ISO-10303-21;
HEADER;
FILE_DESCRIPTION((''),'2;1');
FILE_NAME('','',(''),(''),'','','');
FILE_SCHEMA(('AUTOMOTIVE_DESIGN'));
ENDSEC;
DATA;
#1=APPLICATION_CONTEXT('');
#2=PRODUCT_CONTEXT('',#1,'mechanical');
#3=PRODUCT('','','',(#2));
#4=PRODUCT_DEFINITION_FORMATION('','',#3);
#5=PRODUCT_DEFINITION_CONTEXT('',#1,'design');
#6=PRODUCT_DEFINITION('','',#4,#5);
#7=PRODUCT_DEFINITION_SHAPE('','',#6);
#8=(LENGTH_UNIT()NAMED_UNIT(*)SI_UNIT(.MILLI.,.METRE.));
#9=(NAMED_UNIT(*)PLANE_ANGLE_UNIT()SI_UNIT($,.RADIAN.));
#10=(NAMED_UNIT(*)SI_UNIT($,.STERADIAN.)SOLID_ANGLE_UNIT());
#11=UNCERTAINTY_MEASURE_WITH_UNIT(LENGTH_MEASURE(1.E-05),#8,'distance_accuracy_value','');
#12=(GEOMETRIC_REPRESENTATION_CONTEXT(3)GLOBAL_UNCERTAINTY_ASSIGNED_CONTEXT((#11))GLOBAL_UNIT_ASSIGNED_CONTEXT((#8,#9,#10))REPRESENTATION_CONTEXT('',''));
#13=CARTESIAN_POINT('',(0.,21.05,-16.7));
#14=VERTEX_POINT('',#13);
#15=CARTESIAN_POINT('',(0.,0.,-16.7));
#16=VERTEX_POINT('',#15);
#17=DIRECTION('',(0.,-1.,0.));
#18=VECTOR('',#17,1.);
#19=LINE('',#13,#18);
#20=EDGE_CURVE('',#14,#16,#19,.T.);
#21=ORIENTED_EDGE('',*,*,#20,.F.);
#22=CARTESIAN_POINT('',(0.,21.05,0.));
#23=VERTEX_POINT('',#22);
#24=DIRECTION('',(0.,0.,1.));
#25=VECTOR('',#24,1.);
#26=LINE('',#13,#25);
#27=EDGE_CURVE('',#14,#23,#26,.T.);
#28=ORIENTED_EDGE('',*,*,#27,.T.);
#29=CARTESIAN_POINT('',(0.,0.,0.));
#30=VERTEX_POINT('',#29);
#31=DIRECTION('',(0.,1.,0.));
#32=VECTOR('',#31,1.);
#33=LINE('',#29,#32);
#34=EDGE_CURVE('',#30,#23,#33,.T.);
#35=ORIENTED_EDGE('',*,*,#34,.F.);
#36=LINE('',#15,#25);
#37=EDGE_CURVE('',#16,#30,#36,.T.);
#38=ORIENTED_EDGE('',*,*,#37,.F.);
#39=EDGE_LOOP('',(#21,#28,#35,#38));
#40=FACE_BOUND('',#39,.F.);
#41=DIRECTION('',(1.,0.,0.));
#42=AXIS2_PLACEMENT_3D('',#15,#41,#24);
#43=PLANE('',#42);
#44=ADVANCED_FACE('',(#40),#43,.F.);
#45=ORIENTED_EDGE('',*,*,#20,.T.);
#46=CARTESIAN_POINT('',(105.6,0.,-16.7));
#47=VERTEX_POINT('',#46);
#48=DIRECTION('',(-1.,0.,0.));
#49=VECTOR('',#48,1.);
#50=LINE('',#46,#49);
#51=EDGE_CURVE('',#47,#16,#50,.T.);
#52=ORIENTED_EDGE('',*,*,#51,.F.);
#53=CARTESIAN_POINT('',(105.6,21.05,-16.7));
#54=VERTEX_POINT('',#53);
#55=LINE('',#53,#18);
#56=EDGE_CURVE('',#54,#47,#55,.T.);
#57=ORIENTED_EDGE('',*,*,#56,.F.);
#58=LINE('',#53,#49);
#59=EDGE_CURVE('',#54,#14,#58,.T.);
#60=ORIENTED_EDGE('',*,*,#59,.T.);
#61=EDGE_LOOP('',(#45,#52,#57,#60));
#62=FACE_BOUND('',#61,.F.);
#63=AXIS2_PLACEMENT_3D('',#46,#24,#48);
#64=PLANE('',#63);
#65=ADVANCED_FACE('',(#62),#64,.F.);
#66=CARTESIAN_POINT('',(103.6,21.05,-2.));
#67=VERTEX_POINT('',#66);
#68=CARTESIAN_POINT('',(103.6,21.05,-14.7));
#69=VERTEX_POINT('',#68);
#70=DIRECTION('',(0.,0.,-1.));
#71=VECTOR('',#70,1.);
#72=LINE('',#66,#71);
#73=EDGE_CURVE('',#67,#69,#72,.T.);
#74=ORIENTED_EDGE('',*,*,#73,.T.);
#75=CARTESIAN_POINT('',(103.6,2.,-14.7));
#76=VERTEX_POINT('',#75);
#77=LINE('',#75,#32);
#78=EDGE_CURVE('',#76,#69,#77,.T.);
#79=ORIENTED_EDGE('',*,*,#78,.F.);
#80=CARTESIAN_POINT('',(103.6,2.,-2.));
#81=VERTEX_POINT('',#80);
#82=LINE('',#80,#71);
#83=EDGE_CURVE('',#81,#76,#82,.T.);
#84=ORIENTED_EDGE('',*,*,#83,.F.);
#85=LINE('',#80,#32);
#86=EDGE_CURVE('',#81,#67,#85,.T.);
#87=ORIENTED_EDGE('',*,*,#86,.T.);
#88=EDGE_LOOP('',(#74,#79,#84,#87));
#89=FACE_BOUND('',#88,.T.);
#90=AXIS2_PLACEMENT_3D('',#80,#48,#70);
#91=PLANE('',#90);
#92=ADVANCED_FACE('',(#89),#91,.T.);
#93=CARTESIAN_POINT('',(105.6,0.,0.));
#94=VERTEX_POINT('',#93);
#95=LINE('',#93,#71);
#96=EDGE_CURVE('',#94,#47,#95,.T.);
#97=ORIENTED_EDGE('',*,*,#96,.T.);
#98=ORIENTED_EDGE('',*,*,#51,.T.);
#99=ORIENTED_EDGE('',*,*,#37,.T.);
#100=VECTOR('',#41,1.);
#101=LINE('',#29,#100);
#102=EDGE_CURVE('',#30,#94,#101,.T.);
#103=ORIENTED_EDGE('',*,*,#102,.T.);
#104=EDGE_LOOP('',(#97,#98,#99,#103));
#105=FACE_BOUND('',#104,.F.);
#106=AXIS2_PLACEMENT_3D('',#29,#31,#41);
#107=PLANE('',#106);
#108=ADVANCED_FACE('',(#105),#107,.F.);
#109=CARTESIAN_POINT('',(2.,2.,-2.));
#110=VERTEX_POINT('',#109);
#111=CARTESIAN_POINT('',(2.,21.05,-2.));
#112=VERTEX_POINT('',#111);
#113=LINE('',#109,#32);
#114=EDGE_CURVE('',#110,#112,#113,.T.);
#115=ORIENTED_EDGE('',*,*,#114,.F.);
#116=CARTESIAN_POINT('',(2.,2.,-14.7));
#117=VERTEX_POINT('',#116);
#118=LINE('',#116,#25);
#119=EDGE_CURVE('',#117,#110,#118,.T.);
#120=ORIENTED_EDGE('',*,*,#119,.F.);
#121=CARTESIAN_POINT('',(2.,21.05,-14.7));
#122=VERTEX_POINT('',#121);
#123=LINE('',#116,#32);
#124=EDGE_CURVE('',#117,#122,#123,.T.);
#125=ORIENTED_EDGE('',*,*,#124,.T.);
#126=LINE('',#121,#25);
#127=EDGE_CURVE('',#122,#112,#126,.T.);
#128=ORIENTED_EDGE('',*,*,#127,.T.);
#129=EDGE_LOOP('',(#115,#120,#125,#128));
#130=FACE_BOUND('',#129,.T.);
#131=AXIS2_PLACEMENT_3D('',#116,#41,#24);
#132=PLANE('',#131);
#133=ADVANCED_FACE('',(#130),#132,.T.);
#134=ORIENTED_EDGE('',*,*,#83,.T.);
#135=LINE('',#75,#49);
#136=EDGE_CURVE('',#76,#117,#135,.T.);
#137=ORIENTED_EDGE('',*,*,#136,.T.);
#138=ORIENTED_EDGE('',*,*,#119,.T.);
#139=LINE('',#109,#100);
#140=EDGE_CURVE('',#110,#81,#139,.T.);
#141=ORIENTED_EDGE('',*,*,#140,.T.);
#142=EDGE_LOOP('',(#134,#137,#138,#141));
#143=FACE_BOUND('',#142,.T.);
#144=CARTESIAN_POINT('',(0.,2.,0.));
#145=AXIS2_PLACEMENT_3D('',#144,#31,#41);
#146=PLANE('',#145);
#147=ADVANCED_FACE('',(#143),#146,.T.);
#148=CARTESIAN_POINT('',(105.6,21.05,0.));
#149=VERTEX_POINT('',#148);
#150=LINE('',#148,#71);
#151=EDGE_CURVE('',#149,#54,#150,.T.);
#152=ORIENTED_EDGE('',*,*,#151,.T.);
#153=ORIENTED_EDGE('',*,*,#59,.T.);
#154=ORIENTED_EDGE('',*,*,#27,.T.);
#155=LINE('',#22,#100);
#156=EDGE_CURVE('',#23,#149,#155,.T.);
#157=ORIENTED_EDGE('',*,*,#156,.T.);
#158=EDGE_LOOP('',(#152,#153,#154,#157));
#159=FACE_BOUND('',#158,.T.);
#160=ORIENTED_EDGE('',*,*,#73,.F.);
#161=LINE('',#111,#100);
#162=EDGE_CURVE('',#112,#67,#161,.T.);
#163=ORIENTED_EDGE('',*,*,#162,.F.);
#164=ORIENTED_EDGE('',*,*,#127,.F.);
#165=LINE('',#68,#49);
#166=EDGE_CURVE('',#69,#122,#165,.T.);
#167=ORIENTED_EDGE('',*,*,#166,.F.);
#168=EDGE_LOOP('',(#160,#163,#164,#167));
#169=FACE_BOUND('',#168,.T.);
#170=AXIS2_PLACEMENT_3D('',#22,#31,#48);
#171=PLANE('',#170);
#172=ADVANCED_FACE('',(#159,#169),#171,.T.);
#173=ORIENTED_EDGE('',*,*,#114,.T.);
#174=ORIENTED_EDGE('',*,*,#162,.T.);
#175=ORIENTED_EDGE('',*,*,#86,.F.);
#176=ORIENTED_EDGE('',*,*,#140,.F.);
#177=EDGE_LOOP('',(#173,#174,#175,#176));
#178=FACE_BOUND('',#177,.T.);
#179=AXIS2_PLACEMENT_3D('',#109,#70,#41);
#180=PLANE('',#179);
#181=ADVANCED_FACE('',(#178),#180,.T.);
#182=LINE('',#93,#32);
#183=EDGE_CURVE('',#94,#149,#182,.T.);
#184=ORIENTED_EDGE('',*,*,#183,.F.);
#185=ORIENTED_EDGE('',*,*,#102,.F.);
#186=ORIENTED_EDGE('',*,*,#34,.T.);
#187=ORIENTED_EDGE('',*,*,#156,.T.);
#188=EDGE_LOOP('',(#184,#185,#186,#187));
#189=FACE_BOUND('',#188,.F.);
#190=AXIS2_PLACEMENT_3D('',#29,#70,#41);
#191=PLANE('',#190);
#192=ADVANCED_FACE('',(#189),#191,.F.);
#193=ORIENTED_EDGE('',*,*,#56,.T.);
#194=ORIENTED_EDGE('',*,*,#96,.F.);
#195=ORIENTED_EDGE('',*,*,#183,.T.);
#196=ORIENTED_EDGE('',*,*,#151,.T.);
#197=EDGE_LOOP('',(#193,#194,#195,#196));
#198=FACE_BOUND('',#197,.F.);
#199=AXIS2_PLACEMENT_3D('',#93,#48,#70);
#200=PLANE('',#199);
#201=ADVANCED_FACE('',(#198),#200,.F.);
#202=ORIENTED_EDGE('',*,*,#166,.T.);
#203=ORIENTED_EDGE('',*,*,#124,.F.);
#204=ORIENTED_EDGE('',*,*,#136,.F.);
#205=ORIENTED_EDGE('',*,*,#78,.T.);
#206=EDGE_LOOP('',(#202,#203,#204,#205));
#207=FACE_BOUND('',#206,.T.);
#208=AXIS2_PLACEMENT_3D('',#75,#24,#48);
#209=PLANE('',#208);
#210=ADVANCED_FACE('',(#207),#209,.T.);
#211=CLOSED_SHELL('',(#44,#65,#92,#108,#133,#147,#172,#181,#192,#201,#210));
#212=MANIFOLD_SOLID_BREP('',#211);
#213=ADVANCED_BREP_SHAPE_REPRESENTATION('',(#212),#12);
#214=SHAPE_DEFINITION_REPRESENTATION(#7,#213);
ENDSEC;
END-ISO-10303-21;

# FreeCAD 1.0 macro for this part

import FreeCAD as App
import Part
import Sketcher

V = App.Vector
Q = App.Units.Quantity

doc = App.newDocument("Part")
body = doc.addObject("PartDesign::Body", "Body")

# Sketch on XZ plane
sketch1 = body.newObject("Sketcher::SketchObject", "Sketch")
sketch1.AttachmentSupport = (doc.getObject("XZ_Plane"), [""])
sketch1.MapMode = "FlatFace"
sketch1.addGeometry(Part.LineSegment(V(0, -17, 0), V(0, 0, 0)), False)
sketch1.addGeometry(Part.LineSegment(V(0, 0, 0), V(106, 0, 0)), False)
sketch1.addGeometry(Part.LineSegment(V(106, 0, 0), V(106, -17, 0)), False)
sketch1.addGeometry(Part.LineSegment(V(106, -17, 0), V(0, -17, 0)), False)
sketch1.addConstraint(Sketcher.Constraint("Coincident", 0, 2, 1, 1))
sketch1.addConstraint(Sketcher.Constraint("Coincident", 1, 2, 2, 1))
sketch1.addConstraint(Sketcher.Constraint("Coincident", 2, 2, 3, 1))
sketch1.addConstraint(Sketcher.Constraint("Coincident", 3, 2, 0, 1))
sketch1.addConstraint(Sketcher.Constraint("Vertical", 0))
sketch1.addConstraint(Sketcher.Constraint("Horizontal", 1))
sketch1.addConstraint(Sketcher.Constraint("Vertical", 2))
sketch1.addConstraint(Sketcher.Constraint("Horizontal", 3))
sketch1.addConstraint(Sketcher.Constraint("Coincident", 0, 2, -1, 1))
sketch1.addConstraint(Sketcher.Constraint("DistanceX", 1, 1, 1, 2, Q("105.6 mm")))
sketch1.addConstraint(Sketcher.Constraint("DistanceY", 0, 1, 0, 2, Q("16.7 mm")))
pad1 = body.newObject("PartDesign::Pad", "Pad")
pad1.Profile = sketch1
pad1.Length = 2
pad1.Reversed = True

# Sketch on XZ plane
sketch2 = body.newObject("Sketcher::SketchObject", "Sketch001")
sketch2.AttachmentSupport = (doc.getObject("XZ_Plane"), [""])
sketch2.MapMode = "FlatFace"
sketch2.AttachmentOffset = App.Placement(V(0, 0, -2), App.Rotation())
sketch2.addGeometry(Part.LineSegment(V(106, -17, 0), V(0, -17, 0)), False)
sketch2.addGeometry(Part.LineSegment(V(0, -17, 0), V(0, 0, 0)), False)
sketch2.addGeometry(Part.LineSegment(V(0, 0, 0), V(106, 0, 0)), False)
sketch2.addGeometry(Part.LineSegment(V(106, 0, 0), V(106, -17, 0)), False)
sketch2.addGeometry(Part.LineSegment(V(104, -2, 0), V(2, -2, 0)), False)
sketch2.addGeometry(Part.LineSegment(V(2, -2, 0), V(2, -15, 0)), False)
sketch2.addGeometry(Part.LineSegment(V(2, -15, 0), V(104, -15, 0)), False)
sketch2.addGeometry(Part.LineSegment(V(104, -15, 0), V(104, -2, 0)), False)
sketch2.addConstraint(Sketcher.Constraint("Coincident", 0, 2, 1, 1))
sketch2.addConstraint(Sketcher.Constraint("Coincident", 1, 2, 2, 1))
sketch2.addConstraint(Sketcher.Constraint("Coincident", 2, 2, 3, 1))
sketch2.addConstraint(Sketcher.Constraint("Coincident", 3, 2, 0, 1))
sketch2.addConstraint(Sketcher.Constraint("Coincident", 4, 2, 5, 1))
sketch2.addConstraint(Sketcher.Constraint("Coincident", 5, 2, 6, 1))
sketch2.addConstraint(Sketcher.Constraint("Coincident", 6, 2, 7, 1))
sketch2.addConstraint(Sketcher.Constraint("Coincident", 7, 2, 4, 1))
sketch2.addConstraint(Sketcher.Constraint("Horizontal", 0))
sketch2.addConstraint(Sketcher.Constraint("Vertical", 1))
sketch2.addConstraint(Sketcher.Constraint("Horizontal", 2))
sketch2.addConstraint(Sketcher.Constraint("Vertical", 3))
sketch2.addConstraint(Sketcher.Constraint("Horizontal", 4))
sketch2.addConstraint(Sketcher.Constraint("Vertical", 5))
sketch2.addConstraint(Sketcher.Constraint("Horizontal", 6))
sketch2.addConstraint(Sketcher.Constraint("Vertical", 7))
sketch2.addConstraint(Sketcher.Constraint("Coincident", 1, 2, -1, 1))
sketch2.addConstraint(Sketcher.Constraint("DistanceX", -1, 1, 4, 2, Q("2 mm")))
sketch2.addConstraint(Sketcher.Constraint("DistanceY", 4, 2, -1, 1, Q("2 mm")))
sketch2.addConstraint(Sketcher.Constraint("DistanceY", 0, 2, 5, 2, Q("2 mm")))
sketch2.addConstraint(Sketcher.Constraint("DistanceX", 6, 2, 3, 2, Q("2 mm")))
sketch2.addConstraint(Sketcher.Constraint("DistanceX", 0, 2, 0, 1, Q("105.6 mm")))
sketch2.addConstraint(Sketcher.Constraint("DistanceY", 1, 1, 1, 2, Q("16.7 mm")))
pad2 = body.newObject("PartDesign::Pad", "Pad001")
pad2.Profile = sketch2
pad2.Length = 19.05
pad2.Reversed = True

doc.recompute()
